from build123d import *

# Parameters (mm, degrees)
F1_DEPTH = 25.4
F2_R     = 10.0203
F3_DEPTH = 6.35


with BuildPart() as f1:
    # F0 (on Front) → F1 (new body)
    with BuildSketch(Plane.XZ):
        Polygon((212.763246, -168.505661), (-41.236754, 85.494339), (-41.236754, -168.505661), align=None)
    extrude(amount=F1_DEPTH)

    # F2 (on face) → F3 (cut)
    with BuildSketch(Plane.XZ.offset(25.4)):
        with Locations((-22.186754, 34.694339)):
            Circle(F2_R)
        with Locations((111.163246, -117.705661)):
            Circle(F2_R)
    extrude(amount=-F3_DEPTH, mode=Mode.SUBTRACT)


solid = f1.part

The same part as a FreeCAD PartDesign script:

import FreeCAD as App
import Part
import Sketcher
from FreeCAD import Vector
Q = App.Units.Quantity

doc = App.newDocument("Part")
body = doc.addObject("PartDesign::Body", "Body")

# Sketch on XZ plane
sketch1 = body.newObject("Sketcher::SketchObject", "Sketch")
sketch1.AttachmentSupport = (doc.getObject("XZ_Plane"), [""])
sketch1.MapMode = "FlatFace"
sketch1.addGeometry(Part.LineSegment(Vector(213, -169, 0), Vector(-41, 85, 0)), False)
sketch1.addGeometry(Part.LineSegment(Vector(-41, 85, 0), Vector(-41, -169, 0)), False)
sketch1.addGeometry(Part.LineSegment(Vector(-41, -169, 0), Vector(213, -169, 0)), False)
sketch1.addConstraint(Sketcher.Constraint("Coincident", 0, 2, 1, 1))
sketch1.addConstraint(Sketcher.Constraint("Coincident", 1, 2, 2, 1))
sketch1.addConstraint(Sketcher.Constraint("Coincident", 2, 2, 0, 1))
sketch1.addConstraint(Sketcher.Constraint("Vertical", 1))
sketch1.addConstraint(Sketcher.Constraint("Horizontal", 2))
sketch1.addConstraint(Sketcher.Constraint("Equal", 2, 1))
sketch1.addConstraint(Sketcher.Constraint("DistanceX", 2, 1, 2, 2, Q("10 in")))
sketch1.addConstraint(Sketcher.Constraint("DistanceY", -1, 1, 0, 2, Q("85.494339 mm")))
sketch1.addConstraint(Sketcher.Constraint("DistanceX", 0, 2, -1, 1, Q("41.236754 mm")))
pad1 = body.newObject("PartDesign::Pad", "Pad")
pad1.Profile = sketch1
pad1.Length = Q("1 in")

# Sketch on XZ plane
sketch2 = body.newObject("Sketcher::SketchObject", "Sketch001")
sketch2.AttachmentSupport = (doc.getObject("XZ_Plane"), [""])
sketch2.MapMode = "FlatFace"
sketch2.AttachmentOffset = App.Placement(Vector(0, 0, 1 * 25.4), App.Rotation())
sketch2.addGeometry(Part.Circle(Vector(-22, 35, 0), Vector(0, 0, 1), 10), False)
sketch2.addGeometry(Part.Circle(Vector(111, -118, 0), Vector(0, 0, 1), 10), False)
sketch2.addConstraint(Sketcher.Constraint("Equal", 0, 1))
sketch2.addConstraint(Sketcher.Constraint("Diameter", 0, Q("0.789 in")))
sketch2.addConstraint(Sketcher.Constraint("DistanceY", 1, 3, 0, 3, Q("6 in")))
sketch2.addConstraint(Sketcher.Constraint("DistanceX", 0, 3, 1, 3, Q("5.25 in")))
sketch2.addConstraint(Sketcher.Constraint("DistanceY", -1, 1, 0, 3, Q("34.694339 mm")))
sketch2.addConstraint(Sketcher.Constraint("DistanceX", 0, 3, -1, 1, Q("22.186754 mm")))
pocket1 = body.newObject("PartDesign::Pocket", "Pocket")
pocket1.Profile = sketch2
pocket1.Length = Q("0.25 in")

doc.recompute()
